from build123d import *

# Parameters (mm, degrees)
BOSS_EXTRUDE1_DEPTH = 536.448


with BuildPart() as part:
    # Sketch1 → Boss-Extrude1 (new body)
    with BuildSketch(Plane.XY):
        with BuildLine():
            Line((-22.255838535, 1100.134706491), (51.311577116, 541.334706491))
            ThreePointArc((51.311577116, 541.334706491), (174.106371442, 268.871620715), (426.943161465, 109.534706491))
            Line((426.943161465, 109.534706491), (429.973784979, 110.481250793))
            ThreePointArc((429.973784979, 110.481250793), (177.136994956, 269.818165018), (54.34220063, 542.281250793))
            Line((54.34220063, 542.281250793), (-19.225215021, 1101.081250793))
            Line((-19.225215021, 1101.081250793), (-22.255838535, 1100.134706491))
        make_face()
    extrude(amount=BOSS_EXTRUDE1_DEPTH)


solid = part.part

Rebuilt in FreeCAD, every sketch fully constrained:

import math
import FreeCAD as App
import Part
import Sketcher
Q = App.Units.Quantity

doc = App.newDocument("Part")
body = doc.addObject("PartDesign::Body", "Body")

# Sketch on XY plane
sketch1 = body.newObject("Sketcher::SketchObject", "Sketch")
sketch1.AttachmentSupport = (doc.getObject("XY_Plane"), [""])
sketch1.MapMode = "FlatFace"
sketch1.addGeometry(Part.LineSegment(App.Vector(-22.255839, 1100.134706, 0), App.Vector(51.311577, 541.334706, 0)), False)
sketch1.addGeometry(Part.ArcOfCircle(Part.Circle(App.Vector(565.061154, 608.971121, 0), App.Vector(0, 0, 1), 518.182702), math.radians(-172.5), math.radians(-105.458661)), False)
sketch1.addGeometry(Part.LineSegment(App.Vector(426.943161, 109.534706, 0), App.Vector(429.973785, 110.481251, 0)), False)
sketch1.addGeometry(Part.ArcOfCircle(Part.Circle(App.Vector(568.091778, 609.917666, 0), App.Vector(0, 0, 1), 518.182702), math.radians(-172.5), math.radians(-105.458661)), False)
sketch1.addGeometry(Part.LineSegment(App.Vector(54.342201, 542.281251, 0), App.Vector(-19.225215, 1101.081251, 0)), False)
sketch1.addGeometry(Part.LineSegment(App.Vector(-19.225215, 1101.081251, 0), App.Vector(-22.255839, 1100.134706, 0)), False)
sketch1.addConstraint(Sketcher.Constraint("Tangent", 0, 2, 1, 1))
sketch1.addConstraint(Sketcher.Constraint("Coincident", 1, 2, 2, 1))
sketch1.addConstraint(Sketcher.Constraint("Coincident", 2, 2, 3, 2))
sketch1.addConstraint(Sketcher.Constraint("Tangent", 3, 1, 4, 1))
sketch1.addConstraint(Sketcher.Constraint("Coincident", 4, 2, 5, 1))
sketch1.addConstraint(Sketcher.Constraint("Coincident", 5, 2, 0, 1))
sketch1.addConstraint(Sketcher.Constraint("Equal", 1, 3))
sketch1.addConstraint(Sketcher.Constraint("Parallel", 0, 4))
sketch1.addConstraint(Sketcher.Constraint("Parallel", 2, 5))
sketch1.addConstraint(Sketcher.Constraint("Equal", 0, 4))
sketch1.addConstraint(Sketcher.Constraint("DistanceY", 1, 2, 0, 2, Q("17 in")))
sketch1.addConstraint(Sketcher.Constraint("DistanceY", 0, 2, 5, 2, Q("22 in")))
sketch1.addConstraint(Sketcher.Constraint("Angle", 0, Q("-82.5 deg")))
sketch1.addConstraint(Sketcher.Constraint("Radius", 1, 518.182702))
sketch1.addConstraint(Sketcher.Constraint("Distance", 2, Q("0.125 in")))
sketch1.addConstraint(Sketcher.Constraint("DistanceX", -1, 1, 3, 1, 54.342201))
sketch1.addConstraint(Sketcher.Constraint("DistanceX", 0, 2, 3, 3, 516.7802))
sketch1.addConstraint(Sketcher.Constraint("DistanceY", -1, 1, 1, 3, 608.971121))
pad1 = body.newObject("PartDesign::Pad", "Pad")
pad1.Profile = sketch1
pad1.Length = Q("21.12 in")

doc.recompute()
